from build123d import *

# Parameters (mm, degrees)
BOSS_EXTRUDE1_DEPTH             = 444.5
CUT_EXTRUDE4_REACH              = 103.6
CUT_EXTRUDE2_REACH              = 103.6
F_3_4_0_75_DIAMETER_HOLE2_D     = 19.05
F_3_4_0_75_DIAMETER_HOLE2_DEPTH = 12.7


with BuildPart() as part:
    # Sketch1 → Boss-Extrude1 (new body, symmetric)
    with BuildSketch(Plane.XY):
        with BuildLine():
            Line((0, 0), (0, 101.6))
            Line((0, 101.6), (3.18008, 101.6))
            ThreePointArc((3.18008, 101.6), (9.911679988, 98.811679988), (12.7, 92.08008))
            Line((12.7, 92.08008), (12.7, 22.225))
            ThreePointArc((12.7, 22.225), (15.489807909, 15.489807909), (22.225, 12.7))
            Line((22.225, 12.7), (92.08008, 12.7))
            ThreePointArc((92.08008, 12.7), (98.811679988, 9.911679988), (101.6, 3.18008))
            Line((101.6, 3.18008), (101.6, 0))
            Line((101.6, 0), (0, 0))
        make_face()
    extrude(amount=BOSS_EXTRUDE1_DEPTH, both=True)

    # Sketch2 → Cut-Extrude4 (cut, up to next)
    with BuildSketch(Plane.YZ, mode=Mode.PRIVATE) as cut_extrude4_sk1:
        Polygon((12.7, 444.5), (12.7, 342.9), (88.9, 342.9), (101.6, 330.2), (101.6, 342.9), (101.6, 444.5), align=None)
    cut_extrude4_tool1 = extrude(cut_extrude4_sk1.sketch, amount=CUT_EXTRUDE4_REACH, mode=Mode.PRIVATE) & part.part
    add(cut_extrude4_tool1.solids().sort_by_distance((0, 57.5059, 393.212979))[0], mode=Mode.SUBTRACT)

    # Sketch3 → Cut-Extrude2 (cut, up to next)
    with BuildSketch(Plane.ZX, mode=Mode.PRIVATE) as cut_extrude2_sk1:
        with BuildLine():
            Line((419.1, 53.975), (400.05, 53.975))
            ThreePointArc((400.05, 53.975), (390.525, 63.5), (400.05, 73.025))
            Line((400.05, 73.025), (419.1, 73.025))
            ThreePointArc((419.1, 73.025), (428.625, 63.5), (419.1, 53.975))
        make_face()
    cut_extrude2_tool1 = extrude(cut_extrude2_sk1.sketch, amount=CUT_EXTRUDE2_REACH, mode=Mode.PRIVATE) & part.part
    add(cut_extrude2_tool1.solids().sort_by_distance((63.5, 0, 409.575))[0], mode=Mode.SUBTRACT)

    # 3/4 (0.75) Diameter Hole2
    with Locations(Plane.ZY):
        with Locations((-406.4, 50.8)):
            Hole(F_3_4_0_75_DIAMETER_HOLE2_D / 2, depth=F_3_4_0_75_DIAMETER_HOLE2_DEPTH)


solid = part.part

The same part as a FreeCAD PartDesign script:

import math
import FreeCAD as App
import Part
import Sketcher
from FreeCAD import Vector
Q = App.Units.Quantity


def add_polygon(sketch, points):
    """Adds a closed chain of lines whose ends are joined by coincident constraints."""
    first, n = sketch.GeometryCount, len(points)
    for a, b in zip(points, points[1:] + points[:1]):
        sketch.addGeometry(Part.LineSegment(App.Vector(*a, 0), App.Vector(*b, 0)), False)
    for i in range(n):
        sketch.addConstraint(Sketcher.Constraint("Coincident", first + i, 2, first + (i + 1) % n, 1))

doc = App.newDocument("Part")
body = doc.addObject("PartDesign::Body", "Body")

# Sketch on XY plane
sketch1 = body.newObject("Sketcher::SketchObject", "Sketch")
sketch1.AttachmentSupport = (doc.getObject("XY_Plane"), [""])
sketch1.MapMode = "FlatFace"
sketch1.addGeometry([
    Part.LineSegment(Vector(0, 101.6, 0), Vector(0, 0, 0)),  # 0
    Part.LineSegment(Vector(0, 0, 0), Vector(101.6, 0, 0)),  # 1
    Part.LineSegment(Vector(101.6, 0, 0), Vector(101.6, 3.18008, 0)),  # 2
    Part.ArcOfCircle(Part.Circle(Vector(92.08008, 3.18008, 0), Vector(0, 0, 1), 9.51992), math.radians(0), math.radians(90)),  # 3
    Part.LineSegment(Vector(92.08008, 12.7, 0), Vector(22.225, 12.7, 0)),  # 4
    Part.ArcOfCircle(Part.Circle(Vector(22.225, 22.225, 0), Vector(0, 0, 1), 9.525), math.radians(180), math.radians(270)),  # 5
    Part.LineSegment(Vector(12.7, 22.225, 0), Vector(12.7, 92.08008, 0)),  # 6
    Part.ArcOfCircle(Part.Circle(Vector(3.18008, 92.08008, 0), Vector(0, 0, 1), 9.51992), math.radians(0), math.radians(90)),  # 7
    Part.LineSegment(Vector(3.18008, 101.6, 0), Vector(0, 101.6, 0)),  # 8
], False)
sketch1.addConstraint([
    Sketcher.Constraint("Coincident", 0, 2, 1, 1),
    Sketcher.Constraint("Coincident", 1, 2, 2, 1),
    Sketcher.Constraint("Tangent", 2, 2, 3, 1),
    Sketcher.Constraint("Tangent", 3, 2, 4, 1),
    Sketcher.Constraint("Tangent", 4, 2, 5, 2),
    Sketcher.Constraint("Tangent", 5, 1, 6, 1),
    Sketcher.Constraint("Tangent", 6, 2, 7, 1),
    Sketcher.Constraint("Tangent", 7, 2, 8, 1),
    Sketcher.Constraint("Coincident", 8, 2, 0, 1),
    Sketcher.Constraint("Vertical", 0),
    Sketcher.Constraint("Horizontal", 1),
    Sketcher.Constraint("Vertical", 2),
    Sketcher.Constraint("Horizontal", 4),
    Sketcher.Constraint("Vertical", 6),
    Sketcher.Constraint("Horizontal", 8),
    Sketcher.Constraint("Coincident", 0, 2, -1, 1),
    Sketcher.Constraint("Equal", 3, 7),
    Sketcher.Constraint("Equal", 1, 0),
    Sketcher.Constraint("Equal", 8, 2),
    Sketcher.Constraint("DistanceX", 1, 1, 1, 2, Q("4 in")),
    Sketcher.Constraint("Radius", 5, Q("0.375 in")),
    Sketcher.Constraint("DistanceY", -1, 1, 3, 2, Q("0.5 in")),
    Sketcher.Constraint("Radius", 3, Q("0.3748 in")),
])
pad1 = body.newObject("PartDesign::Pad", "Pad")
pad1.Profile = sketch1
pad1.Length = Q("35 in")
pad1.Midplane = True

# Sketch on YZ plane
sketch2 = body.newObject("Sketcher::SketchObject", "Sketch001")
sketch2.AttachmentSupport = (doc.getObject("YZ_Plane"), [""])
sketch2.MapMode = "FlatFace"
add_polygon(sketch2, [(12.7, 444.5), (12.7, 342.9), (88.9, 342.9), (101.6, 330.2), (101.6, 444.5)])  # lines 0-4
sketch2.addConstraint([
    Sketcher.Constraint("Vertical", 0),
    Sketcher.Constraint("Horizontal", 1),
    Sketcher.Constraint("Vertical", 3),
    Sketcher.Constraint("Horizontal", 4),
    Sketcher.Constraint("DistanceX", 1, 1, 1, 2, Q("3 in")),
    Sketcher.Constraint("DistanceY", 0, 2, 0, 1, Q("4 in")),
    Sketcher.Constraint("DistanceX", 4, 2, 4, 1, Q("3.5 in")),
    Sketcher.Constraint("DistanceY", 3, 1, 3, 2, Q("4.5 in")),
    Sketcher.Constraint("DistanceX", -1, 1, 2, 2, Q("4 in")),
    Sketcher.Constraint("DistanceY", -1, 1, 2, 2, Q("13 in")),
])
pocket1 = body.newObject("PartDesign::Pocket", "Pocket")
pocket1.Profile = sketch2
pocket1.Length = Q("0.875 in")
pocket1.Reversed = True

# Sketch on XZ plane
sketch3 = body.newObject("Sketcher::SketchObject", "Sketch002")
sketch3.AttachmentSupport = (doc.getObject("XZ_Plane"), [""])
sketch3.MapMode = "FlatFace"
sketch3.addGeometry([
    Part.LineSegment(Vector(53.975, 400.05, 0), Vector(53.975, 419.1, 0)),
    Part.ArcOfCircle(Part.Circle(Vector(63.5, 419.1, 0), Vector(0, 0, 1), 9.525), math.radians(0), math.radians(180)),
    Part.LineSegment(Vector(73.025, 419.1, 0), Vector(73.025, 400.05, 0)),
    Part.ArcOfCircle(Part.Circle(Vector(63.5, 400.05, 0), Vector(0, 0, 1), 9.525), math.radians(180), math.radians(360)),
], False)
sketch3.addConstraint([
    Sketcher.Constraint("Tangent", 0, 2, 1, 2),
    Sketcher.Constraint("Tangent", 1, 1, 2, 1),
    Sketcher.Constraint("Tangent", 2, 2, 3, 2),
    Sketcher.Constraint("Tangent", 3, 1, 0, 1),
    Sketcher.Constraint("Vertical", 0),
    Sketcher.Constraint("Vertical", 2),
    Sketcher.Constraint("Radius", 1, Q("0.375 in")),
    Sketcher.Constraint("DistanceY", 0, 1, 0, 2, Q("0.75 in")),
    Sketcher.Constraint("DistanceX", -1, 1, 1, 3, Q("2.5 in")),
    Sketcher.Constraint("DistanceY", -1, 1, 1, 3, Q("16.5 in")),
])
pocket2 = body.newObject("PartDesign::Pocket", "Pocket001")
pocket2.Profile = sketch3
pocket2.Type = "UpToFirst"

# Sketch on YZ plane
sketch4 = body.newObject("Sketcher::SketchObject", "Sketch003")
sketch4.AttachmentSupport = (doc.getObject("YZ_Plane"), [""])
sketch4.MapMode = "FlatFace"
sketch4.addGeometry(Part.Circle(Vector(50.8, -406.4, 0), Vector(0, 0, 1), 9.525), False)
sketch4.addConstraint([
    Sketcher.Constraint("Diameter", 0, Q("0.75 in")),
    Sketcher.Constraint("DistanceX", -1, 1, 0, 3, Q("2 in")),
    Sketcher.Constraint("DistanceY", 0, 3, -1, 1, Q("16 in")),
])
doc.recompute()
hole = body.newObject("PartDesign::Hole", "Hole")
hole.Profile = sketch4
hole.ThreadType = "None"
hole.Diameter = Q("0.75 in")
hole.DepthType = "Dimension"
hole.Depth = Q("0.5 in")
hole.DrillPoint = "Flat"
hole.Reversed = True

doc.recompute()
